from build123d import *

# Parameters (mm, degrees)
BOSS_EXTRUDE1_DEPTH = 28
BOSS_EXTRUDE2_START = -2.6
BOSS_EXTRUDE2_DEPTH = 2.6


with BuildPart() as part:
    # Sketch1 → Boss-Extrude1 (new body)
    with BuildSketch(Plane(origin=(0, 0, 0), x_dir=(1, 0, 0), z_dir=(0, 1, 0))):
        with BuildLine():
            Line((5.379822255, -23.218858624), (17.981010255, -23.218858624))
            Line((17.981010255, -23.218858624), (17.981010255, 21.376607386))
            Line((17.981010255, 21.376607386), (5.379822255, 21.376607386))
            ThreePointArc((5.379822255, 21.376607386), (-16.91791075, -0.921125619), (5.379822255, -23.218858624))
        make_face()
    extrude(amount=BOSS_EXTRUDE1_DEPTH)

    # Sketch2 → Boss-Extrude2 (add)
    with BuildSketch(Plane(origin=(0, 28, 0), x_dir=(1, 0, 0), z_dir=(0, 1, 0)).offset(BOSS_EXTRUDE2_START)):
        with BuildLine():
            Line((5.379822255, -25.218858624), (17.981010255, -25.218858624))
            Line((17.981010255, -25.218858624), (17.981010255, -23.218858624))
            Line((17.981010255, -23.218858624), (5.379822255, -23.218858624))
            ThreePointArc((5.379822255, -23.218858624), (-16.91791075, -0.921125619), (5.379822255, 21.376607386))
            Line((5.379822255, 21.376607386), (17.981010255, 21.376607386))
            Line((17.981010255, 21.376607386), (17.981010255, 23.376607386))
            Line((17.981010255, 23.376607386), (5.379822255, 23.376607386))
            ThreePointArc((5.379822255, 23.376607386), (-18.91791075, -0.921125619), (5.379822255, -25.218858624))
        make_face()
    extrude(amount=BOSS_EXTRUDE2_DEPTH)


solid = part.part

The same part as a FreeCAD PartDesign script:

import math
import FreeCAD as App
import Part
import Sketcher

V = App.Vector
Q = App.Units.Quantity

doc = App.newDocument("Part")
params = doc.addObject("Spreadsheet::Sheet", "Params")
for row, (alias, value) in enumerate([
    ("pad1_length", "28 mm"),
    ("sketch2_height", "2 mm"),
    ("pad2_length", "2.6 mm"),
], start=1):
    params.set(f"A{row}", alias)
    params.set(f"B{row}", "=" + value)
    params.setAlias(f"B{row}", alias)

body = doc.addObject("PartDesign::Body", "Body")

sketch1 = body.newObject("Sketcher::SketchObject", "Sketch")
sketch1.AttachmentSupport = (doc.getObject("XZ_Plane"), [""])
sketch1.MapMode = "FlatFace"
sketch1.addGeometry([
    Part.LineSegment(V(5, 23, 0), V(18, 23, 0)),
    Part.LineSegment(V(18, 23, 0), V(18, -21, 0)),
    Part.LineSegment(V(18, -21, 0), V(5, -21, 0)),
    Part.ArcOfCircle(Part.Circle(V(5, 1, 0), V(0, 0, 1), 22), math.radians(90), math.radians(270)),
], False)
sketch1.addConstraint([
    Sketcher.Constraint("Coincident", 0, 2, 1, 1),
    Sketcher.Constraint("Coincident", 1, 2, 2, 1),
    Sketcher.Constraint("Tangent", 2, 2, 3, 2),
    Sketcher.Constraint("Tangent", 3, 1, 0, 1),
    Sketcher.Constraint("Horizontal", 0),
    Sketcher.Constraint("Vertical", 1),
    Sketcher.Constraint("Horizontal", 2),
    Sketcher.Constraint("Radius", 3, Q("22.297733 mm")),
    Sketcher.Constraint("DistanceX", 0, 1, 0, 2, Q("12.601188 mm")),
    Sketcher.Constraint("DistanceX", -1, 1, 0, 2, Q("17.98101 mm")),
    Sketcher.Constraint("DistanceY", -1, 1, 0, 2, Q("23.218859 mm")),
])
pad1 = body.newObject("PartDesign::Pad", "Pad")
pad1.Profile = sketch1
pad1.setExpression("Length", "Params.pad1_length")
pad1.Reversed = True

sketch2 = body.newObject("Sketcher::SketchObject", "Sketch001")
sketch2.AttachmentSupport = (doc.getObject("XZ_Plane"), [""])
sketch2.MapMode = "FlatFace"
sketch2.AttachmentOffset = App.Placement(V(0, 0, -25.4), App.Rotation())
sketch2.addGeometry([
    Part.LineSegment(V(5.4, 25.2, 0), V(18, 25.2, 0)),
    Part.LineSegment(V(18, 25.2, 0), V(18, 23.2, 0)),
    Part.LineSegment(V(18, 23.2, 0), V(5.4, 23.2, 0)),
    Part.ArcOfCircle(Part.Circle(V(5.4, 0.9, 0), V(0, 0, 1), 22.3), math.radians(90), math.radians(270)),
    Part.LineSegment(V(5.4, -21.4, 0), V(18, -21.4, 0)),
    Part.LineSegment(V(18, -21.4, 0), V(18, -23.4, 0)),
    Part.LineSegment(V(18, -23.4, 0), V(5.4, -23.4, 0)),
    Part.ArcOfCircle(Part.Circle(V(5.4, 0.9, 0), V(0, 0, 1), 24.3), math.radians(90), math.radians(270)),
], False)
sketch2.addConstraint([
    Sketcher.Constraint("Coincident", 0, 2, 1, 1),
    Sketcher.Constraint("Coincident", 1, 2, 2, 1),
    Sketcher.Constraint("Tangent", 2, 2, 3, 1),
    Sketcher.Constraint("Tangent", 3, 2, 4, 1),
    Sketcher.Constraint("Coincident", 4, 2, 5, 1),
    Sketcher.Constraint("Coincident", 5, 2, 6, 1),
    Sketcher.Constraint("Tangent", 6, 2, 7, 2),
    Sketcher.Constraint("Tangent", 7, 1, 0, 1),
    Sketcher.Constraint("Horizontal", 0),
    Sketcher.Constraint("Vertical", 1),
    Sketcher.Constraint("Horizontal", 2),
    Sketcher.Constraint("Horizontal", 4),
    Sketcher.Constraint("Vertical", 5),
    Sketcher.Constraint("Horizontal", 6),
    Sketcher.Constraint("Coincident", 7, 3, 3, 3),
    Sketcher.Constraint("Vertical", 1, 2, 4, 2),
    Sketcher.Constraint("DistanceY", 1, 2, 1, 1, Q("2 mm")),
    Sketcher.Constraint("Radius", 3, Q("22.297733 mm")),
    Sketcher.Constraint("DistanceX", 0, 1, 0, 2, Q("12.601188 mm")),
    Sketcher.Constraint("DistanceX", -1, 1, 0, 2, Q("17.98101 mm")),
    Sketcher.Constraint("DistanceY", -1, 1, 0, 2, Q("25.218859 mm")),
])
sketch2.setExpression("Constraints[16]", "Params.sketch2_height")
pad2 = body.newObject("PartDesign::Pad", "Pad001")
pad2.Profile = sketch2
pad2.setExpression("Length", "Params.pad2_length")
pad2.Reversed = True

doc.recompute()
